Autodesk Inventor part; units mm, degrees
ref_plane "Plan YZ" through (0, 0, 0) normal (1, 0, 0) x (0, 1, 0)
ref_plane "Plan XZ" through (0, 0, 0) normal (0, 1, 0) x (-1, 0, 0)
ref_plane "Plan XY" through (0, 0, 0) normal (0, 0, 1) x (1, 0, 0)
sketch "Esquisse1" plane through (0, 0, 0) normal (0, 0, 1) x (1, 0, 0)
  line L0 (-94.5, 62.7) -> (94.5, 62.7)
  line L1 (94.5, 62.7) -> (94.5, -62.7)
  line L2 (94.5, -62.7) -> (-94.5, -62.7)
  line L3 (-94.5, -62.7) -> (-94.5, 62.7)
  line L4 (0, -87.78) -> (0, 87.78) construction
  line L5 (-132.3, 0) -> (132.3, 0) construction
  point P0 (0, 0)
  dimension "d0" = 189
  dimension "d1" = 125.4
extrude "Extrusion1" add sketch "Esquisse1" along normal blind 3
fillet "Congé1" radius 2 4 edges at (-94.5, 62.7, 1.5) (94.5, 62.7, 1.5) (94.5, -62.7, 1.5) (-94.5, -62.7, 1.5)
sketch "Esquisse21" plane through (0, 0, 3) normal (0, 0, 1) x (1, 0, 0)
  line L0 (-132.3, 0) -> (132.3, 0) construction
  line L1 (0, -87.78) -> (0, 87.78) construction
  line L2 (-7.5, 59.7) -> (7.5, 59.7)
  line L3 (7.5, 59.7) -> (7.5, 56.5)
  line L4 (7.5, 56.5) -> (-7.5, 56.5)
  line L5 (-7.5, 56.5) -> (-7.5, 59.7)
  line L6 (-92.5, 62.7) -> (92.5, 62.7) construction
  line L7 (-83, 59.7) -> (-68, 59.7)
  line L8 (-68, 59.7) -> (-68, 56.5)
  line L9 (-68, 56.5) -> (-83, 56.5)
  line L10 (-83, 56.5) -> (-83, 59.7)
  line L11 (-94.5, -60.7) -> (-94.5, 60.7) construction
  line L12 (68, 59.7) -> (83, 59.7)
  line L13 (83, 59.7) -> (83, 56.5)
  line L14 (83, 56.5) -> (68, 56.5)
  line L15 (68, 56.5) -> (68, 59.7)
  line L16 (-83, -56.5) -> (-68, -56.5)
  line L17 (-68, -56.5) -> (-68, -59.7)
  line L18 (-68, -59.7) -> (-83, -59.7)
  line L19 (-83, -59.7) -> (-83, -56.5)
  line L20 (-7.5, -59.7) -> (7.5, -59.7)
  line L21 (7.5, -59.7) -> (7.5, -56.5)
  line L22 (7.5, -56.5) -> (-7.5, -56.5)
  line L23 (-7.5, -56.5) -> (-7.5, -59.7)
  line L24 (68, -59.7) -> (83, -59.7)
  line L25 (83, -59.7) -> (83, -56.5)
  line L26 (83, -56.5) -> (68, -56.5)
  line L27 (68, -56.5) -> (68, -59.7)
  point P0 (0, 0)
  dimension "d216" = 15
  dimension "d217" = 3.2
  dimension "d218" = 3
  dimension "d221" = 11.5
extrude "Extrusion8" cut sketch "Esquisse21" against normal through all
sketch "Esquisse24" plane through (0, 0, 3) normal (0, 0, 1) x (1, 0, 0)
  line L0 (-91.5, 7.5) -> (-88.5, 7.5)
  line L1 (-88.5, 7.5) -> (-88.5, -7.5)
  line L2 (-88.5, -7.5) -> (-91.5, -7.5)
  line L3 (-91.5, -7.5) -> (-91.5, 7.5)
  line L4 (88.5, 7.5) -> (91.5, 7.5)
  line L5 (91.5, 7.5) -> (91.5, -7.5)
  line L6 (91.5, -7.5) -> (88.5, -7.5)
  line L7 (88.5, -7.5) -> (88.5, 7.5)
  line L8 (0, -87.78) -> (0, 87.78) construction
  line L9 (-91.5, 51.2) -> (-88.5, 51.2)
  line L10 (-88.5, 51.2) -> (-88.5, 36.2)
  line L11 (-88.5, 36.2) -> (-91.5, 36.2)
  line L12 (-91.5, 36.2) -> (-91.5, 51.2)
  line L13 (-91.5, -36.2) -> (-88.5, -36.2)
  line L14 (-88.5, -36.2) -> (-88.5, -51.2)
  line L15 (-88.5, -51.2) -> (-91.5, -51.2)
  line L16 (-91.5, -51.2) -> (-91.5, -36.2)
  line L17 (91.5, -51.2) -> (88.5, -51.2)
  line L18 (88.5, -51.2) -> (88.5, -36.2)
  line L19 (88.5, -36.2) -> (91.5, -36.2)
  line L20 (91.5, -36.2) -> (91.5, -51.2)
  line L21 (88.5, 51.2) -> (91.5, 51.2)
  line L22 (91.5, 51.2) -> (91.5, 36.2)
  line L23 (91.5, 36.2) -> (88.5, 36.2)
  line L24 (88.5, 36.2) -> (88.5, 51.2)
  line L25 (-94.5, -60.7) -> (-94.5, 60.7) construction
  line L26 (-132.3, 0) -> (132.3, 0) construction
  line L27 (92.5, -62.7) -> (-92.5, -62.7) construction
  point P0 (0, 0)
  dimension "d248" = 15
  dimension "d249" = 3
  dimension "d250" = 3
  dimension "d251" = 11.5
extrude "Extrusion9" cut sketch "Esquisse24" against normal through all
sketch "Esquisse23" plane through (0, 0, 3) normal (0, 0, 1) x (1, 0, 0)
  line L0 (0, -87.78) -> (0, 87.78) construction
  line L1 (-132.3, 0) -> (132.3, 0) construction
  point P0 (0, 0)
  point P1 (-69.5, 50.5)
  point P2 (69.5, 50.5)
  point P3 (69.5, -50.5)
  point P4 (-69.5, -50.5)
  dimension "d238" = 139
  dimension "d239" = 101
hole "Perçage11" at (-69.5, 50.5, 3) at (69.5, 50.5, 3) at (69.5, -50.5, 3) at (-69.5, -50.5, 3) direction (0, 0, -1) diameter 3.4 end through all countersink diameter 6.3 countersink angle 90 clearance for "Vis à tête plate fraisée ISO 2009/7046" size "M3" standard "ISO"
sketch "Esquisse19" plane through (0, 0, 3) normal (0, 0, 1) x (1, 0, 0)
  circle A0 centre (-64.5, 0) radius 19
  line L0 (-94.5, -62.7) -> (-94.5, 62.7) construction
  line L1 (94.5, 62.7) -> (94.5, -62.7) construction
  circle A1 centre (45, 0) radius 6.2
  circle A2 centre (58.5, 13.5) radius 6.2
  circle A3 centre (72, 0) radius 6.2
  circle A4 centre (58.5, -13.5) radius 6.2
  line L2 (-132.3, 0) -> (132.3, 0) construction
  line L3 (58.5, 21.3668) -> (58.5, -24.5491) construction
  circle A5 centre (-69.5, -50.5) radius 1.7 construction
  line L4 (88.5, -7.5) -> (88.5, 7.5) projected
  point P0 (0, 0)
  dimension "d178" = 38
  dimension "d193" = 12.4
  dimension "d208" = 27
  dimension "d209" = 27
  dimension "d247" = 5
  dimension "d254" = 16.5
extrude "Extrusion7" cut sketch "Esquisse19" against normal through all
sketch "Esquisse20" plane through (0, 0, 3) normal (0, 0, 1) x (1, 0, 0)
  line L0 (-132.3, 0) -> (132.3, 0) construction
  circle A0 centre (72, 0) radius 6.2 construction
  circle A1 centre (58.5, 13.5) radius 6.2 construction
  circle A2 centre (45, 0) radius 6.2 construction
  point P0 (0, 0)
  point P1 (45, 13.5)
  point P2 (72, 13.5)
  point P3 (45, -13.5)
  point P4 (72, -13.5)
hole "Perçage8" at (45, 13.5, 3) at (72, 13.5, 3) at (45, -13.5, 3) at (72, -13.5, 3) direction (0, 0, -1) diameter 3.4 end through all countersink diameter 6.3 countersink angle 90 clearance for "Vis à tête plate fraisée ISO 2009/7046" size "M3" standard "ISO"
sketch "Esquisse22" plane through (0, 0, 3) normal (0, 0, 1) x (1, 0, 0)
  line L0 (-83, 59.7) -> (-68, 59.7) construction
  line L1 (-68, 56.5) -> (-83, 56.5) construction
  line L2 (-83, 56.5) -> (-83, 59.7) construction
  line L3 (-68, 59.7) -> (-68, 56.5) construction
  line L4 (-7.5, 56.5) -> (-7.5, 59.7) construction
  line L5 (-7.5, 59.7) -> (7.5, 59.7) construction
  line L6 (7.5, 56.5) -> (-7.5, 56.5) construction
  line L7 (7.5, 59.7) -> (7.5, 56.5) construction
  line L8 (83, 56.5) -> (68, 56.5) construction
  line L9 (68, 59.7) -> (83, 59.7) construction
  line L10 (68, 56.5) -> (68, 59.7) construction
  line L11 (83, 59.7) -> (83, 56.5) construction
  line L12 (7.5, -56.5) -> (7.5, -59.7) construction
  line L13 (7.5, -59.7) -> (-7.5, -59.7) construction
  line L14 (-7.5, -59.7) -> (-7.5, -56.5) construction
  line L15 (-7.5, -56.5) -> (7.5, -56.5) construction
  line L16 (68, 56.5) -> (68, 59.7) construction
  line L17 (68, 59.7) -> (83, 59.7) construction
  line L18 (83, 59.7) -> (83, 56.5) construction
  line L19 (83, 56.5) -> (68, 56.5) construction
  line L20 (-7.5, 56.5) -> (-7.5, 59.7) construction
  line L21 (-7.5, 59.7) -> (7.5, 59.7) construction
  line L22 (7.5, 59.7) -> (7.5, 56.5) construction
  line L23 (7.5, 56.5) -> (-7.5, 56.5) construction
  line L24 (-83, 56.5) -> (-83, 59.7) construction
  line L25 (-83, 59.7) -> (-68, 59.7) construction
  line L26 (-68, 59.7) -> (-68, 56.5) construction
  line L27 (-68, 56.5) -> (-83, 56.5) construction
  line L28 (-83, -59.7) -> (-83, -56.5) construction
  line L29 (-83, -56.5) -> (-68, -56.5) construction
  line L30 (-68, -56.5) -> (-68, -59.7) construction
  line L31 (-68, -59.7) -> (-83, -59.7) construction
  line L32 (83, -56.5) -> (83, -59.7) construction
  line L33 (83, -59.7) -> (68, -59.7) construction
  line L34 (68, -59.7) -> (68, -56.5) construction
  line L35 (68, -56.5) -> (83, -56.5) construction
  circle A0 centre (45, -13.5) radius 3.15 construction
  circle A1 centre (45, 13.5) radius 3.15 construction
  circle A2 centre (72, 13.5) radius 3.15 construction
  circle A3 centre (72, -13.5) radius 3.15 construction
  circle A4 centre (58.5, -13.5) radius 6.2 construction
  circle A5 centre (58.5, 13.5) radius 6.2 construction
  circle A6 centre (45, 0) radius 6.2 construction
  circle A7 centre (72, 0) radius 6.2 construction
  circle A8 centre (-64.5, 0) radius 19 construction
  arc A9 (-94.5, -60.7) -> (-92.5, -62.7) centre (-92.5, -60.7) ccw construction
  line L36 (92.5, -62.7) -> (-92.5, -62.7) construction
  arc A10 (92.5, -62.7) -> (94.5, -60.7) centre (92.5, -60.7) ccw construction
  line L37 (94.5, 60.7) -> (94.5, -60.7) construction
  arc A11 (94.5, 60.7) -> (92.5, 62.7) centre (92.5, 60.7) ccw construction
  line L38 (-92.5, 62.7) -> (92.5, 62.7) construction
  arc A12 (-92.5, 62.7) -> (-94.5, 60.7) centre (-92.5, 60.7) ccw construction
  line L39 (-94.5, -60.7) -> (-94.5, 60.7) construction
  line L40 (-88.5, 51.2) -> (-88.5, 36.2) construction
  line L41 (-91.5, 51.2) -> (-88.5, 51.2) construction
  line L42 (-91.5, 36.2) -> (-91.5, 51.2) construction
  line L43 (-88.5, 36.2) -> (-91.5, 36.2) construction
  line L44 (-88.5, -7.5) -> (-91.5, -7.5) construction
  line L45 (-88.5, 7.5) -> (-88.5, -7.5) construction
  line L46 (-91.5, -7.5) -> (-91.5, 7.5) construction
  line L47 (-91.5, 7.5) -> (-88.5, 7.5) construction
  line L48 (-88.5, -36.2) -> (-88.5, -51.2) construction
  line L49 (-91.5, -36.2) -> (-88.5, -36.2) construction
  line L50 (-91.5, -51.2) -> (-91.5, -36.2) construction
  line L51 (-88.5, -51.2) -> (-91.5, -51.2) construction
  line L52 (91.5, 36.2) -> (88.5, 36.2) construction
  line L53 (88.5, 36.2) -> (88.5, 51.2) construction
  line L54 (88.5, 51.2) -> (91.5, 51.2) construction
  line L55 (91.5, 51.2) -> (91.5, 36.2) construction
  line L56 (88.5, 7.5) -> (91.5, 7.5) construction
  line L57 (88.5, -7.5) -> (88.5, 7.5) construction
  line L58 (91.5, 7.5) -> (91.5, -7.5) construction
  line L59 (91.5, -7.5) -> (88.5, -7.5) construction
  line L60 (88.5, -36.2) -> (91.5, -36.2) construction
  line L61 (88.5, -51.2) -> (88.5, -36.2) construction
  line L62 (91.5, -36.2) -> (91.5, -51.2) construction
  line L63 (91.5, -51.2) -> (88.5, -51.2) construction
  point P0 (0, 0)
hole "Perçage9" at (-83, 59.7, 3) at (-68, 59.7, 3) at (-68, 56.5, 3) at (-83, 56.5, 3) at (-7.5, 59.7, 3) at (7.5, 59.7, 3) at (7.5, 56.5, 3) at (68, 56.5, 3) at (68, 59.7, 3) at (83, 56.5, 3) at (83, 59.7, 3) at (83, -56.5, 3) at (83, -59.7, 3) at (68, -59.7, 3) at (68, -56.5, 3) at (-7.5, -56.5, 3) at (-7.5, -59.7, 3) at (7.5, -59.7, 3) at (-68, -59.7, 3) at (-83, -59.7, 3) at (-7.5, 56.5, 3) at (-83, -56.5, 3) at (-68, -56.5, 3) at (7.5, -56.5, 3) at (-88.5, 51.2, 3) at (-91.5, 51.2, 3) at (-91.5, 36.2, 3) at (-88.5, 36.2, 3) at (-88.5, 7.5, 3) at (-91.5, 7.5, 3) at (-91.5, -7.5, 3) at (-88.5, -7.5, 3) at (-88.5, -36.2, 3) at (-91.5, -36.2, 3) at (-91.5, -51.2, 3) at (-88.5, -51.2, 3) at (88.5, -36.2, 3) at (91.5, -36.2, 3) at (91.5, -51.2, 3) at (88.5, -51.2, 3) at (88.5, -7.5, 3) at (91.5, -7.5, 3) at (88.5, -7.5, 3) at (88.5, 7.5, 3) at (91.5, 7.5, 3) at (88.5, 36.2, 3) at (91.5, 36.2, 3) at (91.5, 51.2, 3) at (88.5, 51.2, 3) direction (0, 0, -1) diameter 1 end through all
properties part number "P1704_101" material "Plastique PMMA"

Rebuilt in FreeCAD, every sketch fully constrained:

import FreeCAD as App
import Part
import Sketcher


def edges_at(feature, points):
    """Names of the edges that pass closest to the given points."""
    edges = feature.Shape.Edges
    near = lambda p: min(range(len(edges)), key=lambda i: edges[i].distToShape(Part.Vertex(*p))[0])
    return sorted({f"Edge{near(p) + 1}" for p in points})


def add_polygon(sketch, points):
    """Adds a closed chain of lines whose ends are joined by coincident constraints."""
    first, n = sketch.GeometryCount, len(points)
    for a, b in zip(points, points[1:] + points[:1]):
        sketch.addGeometry(Part.LineSegment(App.Vector(*a, 0), App.Vector(*b, 0)), False)
    for i in range(n):
        sketch.addConstraint(Sketcher.Constraint("Coincident", first + i, 2, first + (i + 1) % n, 1))

doc = App.newDocument("Part")
body = doc.addObject("PartDesign::Body", "Body")

sketch1 = body.newObject("Sketcher::SketchObject", "Sketch")
sketch1.AttachmentSupport = (doc.getObject("XY_Plane"), [""])
sketch1.MapMode = "FlatFace"
add_polygon(sketch1, [(94, 63), (-94, 63), (-94, -63), (94, -63)])
sketch1.addConstraint([
    Sketcher.Constraint("Horizontal", 0),
    Sketcher.Constraint("Vertical", 1),
    Sketcher.Constraint("Horizontal", 2),
    Sketcher.Constraint("Vertical", 3),
    Sketcher.Constraint("Symmetric", 0, 2, 2, 2, -1, 1),
    Sketcher.Constraint("DistanceX", 0, 2, 0, 1, 189.0),
    Sketcher.Constraint("DistanceY", 1, 2, 1, 1, 125.4),
])
pad1 = body.newObject("PartDesign::Pad", "Pad")
pad1.Profile = sketch1
pad1.Length = 3
doc.recompute()

fillet = body.newObject("PartDesign::Fillet", "Fillet")
fillet.Base = (pad1, edges_at(pad1, [
    (-94.5, 62.7, 1.5),
    (94.5, 62.7, 1.5),
    (94.5, -62.7, 1.5),
    (-94.5, -62.7, 1.5),
]))
fillet.Radius = 2

sketch2 = body.newObject("Sketcher::SketchObject", "Sketch001")
sketch2.AttachmentSupport = (doc.getObject("XY_Plane"), [""])
sketch2.MapMode = "FlatFace"
sketch2.AttachmentOffset = App.Placement(App.Vector(0, 0, 3), App.Rotation())
add_polygon(sketch2, [(7.5, 59.7), (-7.5, 59.7), (-7.5, 56.5), (7.5, 56.5)])
add_polygon(sketch2, [(-68, 59.7), (-83, 59.7), (-83, 56.5), (-68, 56.5)])
add_polygon(sketch2, [(83, 59.7), (68, 59.7), (68, 56.5), (83, 56.5)])
add_polygon(sketch2, [(-68, -56.5), (-83, -56.5), (-83, -59.7), (-68, -59.7)])
add_polygon(sketch2, [(-7.5, -56.5), (-7.5, -59.7), (7.5, -59.7), (7.5, -56.5)])
add_polygon(sketch2, [(68, -56.5), (68, -59.7), (83, -59.7), (83, -56.5)])
sketch2.addConstraint([
    Sketcher.Constraint("Horizontal", 0),
    Sketcher.Constraint("Vertical", 1),
    Sketcher.Constraint("Horizontal", 2),
    Sketcher.Constraint("Vertical", 3),
    Sketcher.Constraint("Horizontal", 4),
    Sketcher.Constraint("Vertical", 5),
    Sketcher.Constraint("Horizontal", 6),
    Sketcher.Constraint("Vertical", 7),
    Sketcher.Constraint("Horizontal", 8),
    Sketcher.Constraint("Vertical", 9),
    Sketcher.Constraint("Horizontal", 10),
    Sketcher.Constraint("Vertical", 11),
    Sketcher.Constraint("Horizontal", 12),
    Sketcher.Constraint("Vertical", 13),
    Sketcher.Constraint("Horizontal", 14),
    Sketcher.Constraint("Vertical", 15),
    Sketcher.Constraint("Vertical", 16),
    Sketcher.Constraint("Horizontal", 17),
    Sketcher.Constraint("Vertical", 18),
    Sketcher.Constraint("Horizontal", 19),
    Sketcher.Constraint("Vertical", 20),
    Sketcher.Constraint("Horizontal", 21),
    Sketcher.Constraint("Vertical", 22),
    Sketcher.Constraint("Horizontal", 23),
    Sketcher.Constraint("Symmetric", 10, 2, 12, 2, -1, 1),
    Sketcher.Constraint("Symmetric", 8, 2, 14, 2, -1, 1),
    Sketcher.Constraint("Symmetric", 3, 2, 16, 2, -1, 1),
    Sketcher.Constraint("Symmetric", 1, 2, 18, 2, -1, 1),
    Sketcher.Constraint("Symmetric", 7, 2, 20, 2, -1, 1),
    Sketcher.Constraint("Symmetric", 5, 2, 22, 2, -1, 1),
    Sketcher.Constraint("Symmetric", 7, 2, 8, 2, -2),
    Sketcher.Constraint("Symmetric", 5, 2, 10, 2, -2),
    Sketcher.Constraint("Horizontal", 3, 2, 4, 2),
    Sketcher.Constraint("Horizontal", 2, 2, 5, 2),
    Sketcher.Constraint("Vertical", 1, 2, 16, 2),
    Sketcher.Constraint("Equal", 2, 4),
    Sketcher.Constraint("DistanceX", 0, 2, 0, 1, 15.0),
    Sketcher.Constraint("DistanceY", 1, 2, 1, 1, 3.2),
    Sketcher.Constraint("DistanceX", 4, 2, -1, 1, 83.0),
    Sketcher.Constraint("DistanceY", 12, 2, 5, 2, 113.0),
])
pocket1 = body.newObject("PartDesign::Pocket", "Pocket")
pocket1.Profile = sketch2
pocket1.Type = "ThroughAll"

sketch3 = body.newObject("Sketcher::SketchObject", "Sketch002")
sketch3.AttachmentSupport = (doc.getObject("XY_Plane"), [""])
sketch3.MapMode = "FlatFace"
sketch3.AttachmentOffset = App.Placement(App.Vector(0, 0, 3), App.Rotation())
add_polygon(sketch3, [(-88.5, 7.5), (-91.5, 7.5), (-91.5, -7.5), (-88.5, -7.5)])
add_polygon(sketch3, [(91.5, 7.5), (88.5, 7.5), (88.5, -7.5), (91.5, -7.5)])
add_polygon(sketch3, [(-88.5, 51.2), (-91.5, 51.2), (-91.5, 36.2), (-88.5, 36.2)])
add_polygon(sketch3, [(-88.5, -36.2), (-91.5, -36.2), (-91.5, -51.2), (-88.5, -51.2)])
add_polygon(sketch3, [(88.5, -51.2), (91.5, -51.2), (91.5, -36.2), (88.5, -36.2)])
add_polygon(sketch3, [(91.5, 51.2), (88.5, 51.2), (88.5, 36.2), (91.5, 36.2)])
sketch3.addConstraint([
    Sketcher.Constraint("Horizontal", 0),
    Sketcher.Constraint("Vertical", 1),
    Sketcher.Constraint("Horizontal", 2),
    Sketcher.Constraint("Vertical", 3),
    Sketcher.Constraint("Horizontal", 4),
    Sketcher.Constraint("Vertical", 5),
    Sketcher.Constraint("Horizontal", 6),
    Sketcher.Constraint("Vertical", 7),
    Sketcher.Constraint("Horizontal", 8),
    Sketcher.Constraint("Vertical", 9),
    Sketcher.Constraint("Horizontal", 10),
    Sketcher.Constraint("Vertical", 11),
    Sketcher.Constraint("Horizontal", 12),
    Sketcher.Constraint("Vertical", 13),
    Sketcher.Constraint("Horizontal", 14),
    Sketcher.Constraint("Vertical", 15),
    Sketcher.Constraint("Horizontal", 16),
    Sketcher.Constraint("Vertical", 17),
    Sketcher.Constraint("Horizontal", 18),
    Sketcher.Constraint("Vertical", 19),
    Sketcher.Constraint("Horizontal", 20),
    Sketcher.Constraint("Vertical", 21),
    Sketcher.Constraint("Horizontal", 22),
    Sketcher.Constraint("Vertical", 23),
    Sketcher.Constraint("Symmetric", 2, 2, 4, 2, -1, 1),
    Sketcher.Constraint("Symmetric", 0, 2, 6, 2, -1, 1),
    Sketcher.Constraint("Symmetric", 8, 2, 16, 2, -1, 1),
    Sketcher.Constraint("Symmetric", 10, 2, 18, 2, -1, 1),
    Sketcher.Constraint("Symmetric", 14, 2, 20, 2, -1, 1),
    Sketcher.Constraint("Symmetric", 12, 2, 22, 2, -1, 1),
    Sketcher.Constraint("Symmetric", 13, 2, 16, 2, -2),
    Sketcher.Constraint("Symmetric", 15, 2, 18, 2, -2),
    Sketcher.Constraint("Horizontal", 3, 2, 4, 2),
    Sketcher.Constraint("Vertical", 1, 2, 8, 2),
    Sketcher.Constraint("Vertical", 3, 2, 10, 2),
    Sketcher.Constraint("Equal", 7, 9),
    Sketcher.Constraint("DistanceX", 0, 2, 0, 1, 3.0),
    Sketcher.Constraint("DistanceY", 1, 2, 1, 1, 15.0),
    Sketcher.Constraint("DistanceX", 3, 2, 4, 2, 177.0),
    Sketcher.Constraint("DistanceY", -1, 1, 8, 2, 51.2),
])
pocket2 = body.newObject("PartDesign::Pocket", "Pocket001")
pocket2.Profile = sketch3
pocket2.Type = "ThroughAll"

sketch4 = body.newObject("Sketcher::SketchObject", "Sketch003")
sketch4.AttachmentSupport = (doc.getObject("XY_Plane"), [""])
sketch4.MapMode = "FlatFace"
sketch4.AttachmentOffset = App.Placement(App.Vector(0, 0, 3), App.Rotation())
sketch4.addGeometry([
    Part.Circle(App.Vector(-69.5, 50.5, 0), App.Vector(0, 0, 1), 1.7),
    Part.Circle(App.Vector(69.5, 50.5, 0), App.Vector(0, 0, 1), 1.7),
    Part.Circle(App.Vector(69.5, -50.5, 0), App.Vector(0, 0, 1), 1.7),
    Part.Circle(App.Vector(-69.5, -50.5, 0), App.Vector(0, 0, 1), 1.7),
], False)
sketch4.addConstraint([
    Sketcher.Constraint("Equal", 0, 1),
    Sketcher.Constraint("Equal", 1, 2),
    Sketcher.Constraint("Equal", 2, 3),
    Sketcher.Constraint("Symmetric", 0, 3, 2, 3, -1, 1),
    Sketcher.Constraint("Symmetric", 1, 3, 3, 3, -1, 1),
    Sketcher.Constraint("Symmetric", 0, 3, 1, 3, -2),
    Sketcher.Constraint("Diameter", 0, 3.4),
    Sketcher.Constraint("DistanceX", 0, 3, 1, 3, 139.0),
    Sketcher.Constraint("DistanceY", 2, 3, 1, 3, 101.0),
])
doc.recompute()
hole = body.newObject("PartDesign::Hole", "Hole")
hole.Profile = sketch4
hole.ThreadType = "None"
hole.Diameter = 3.4
hole.DepthType = "ThroughAll"
hole.HoleCutType = "Countersink"
hole.HoleCutDiameter = 6.3
hole.HoleCutCountersinkAngle = 90

sketch5 = body.newObject("Sketcher::SketchObject", "Sketch004")
sketch5.AttachmentSupport = (doc.getObject("XY_Plane"), [""])
sketch5.MapMode = "FlatFace"
sketch5.AttachmentOffset = App.Placement(App.Vector(0, 0, 3), App.Rotation())
sketch5.addGeometry([
    Part.Circle(App.Vector(-64, 0, 0), App.Vector(0, 0, 1), 19),
    Part.Circle(App.Vector(45, 0, 0), App.Vector(0, 0, 1), 6),
    Part.Circle(App.Vector(58, 14, 0), App.Vector(0, 0, 1), 6),
    Part.Circle(App.Vector(72, 0, 0), App.Vector(0, 0, 1), 6),
    Part.Circle(App.Vector(58, -14, 0), App.Vector(0, 0, 1), 6),
], False)
sketch5.addConstraint([
    Sketcher.Constraint("Equal", 1, 2),
    Sketcher.Constraint("Equal", 2, 3),
    Sketcher.Constraint("Equal", 3, 4),
    Sketcher.Constraint("Symmetric", 2, 3, 4, 3, -1),
    Sketcher.Constraint("PointOnObject", 0, 3, -1),
    Sketcher.Constraint("PointOnObject", 1, 3, -1),
    Sketcher.Constraint("PointOnObject", 3, 3, -1),
    Sketcher.Constraint("Diameter", 0, 38.0),
    Sketcher.Constraint("Diameter", 1, 12.4),
    Sketcher.Constraint("DistanceX", 1, 3, 3, 3, 27.0),
    Sketcher.Constraint("DistanceY", 4, 3, 2, 3, 27.0),
    Sketcher.Constraint("DistanceX", -1, 1, 1, 3, 45.0),
    Sketcher.Constraint("DistanceX", 0, 3, 2, 3, 123.0),
    Sketcher.Constraint("DistanceX", 0, 3, -1, 1, 64.5),
])
pocket3 = body.newObject("PartDesign::Pocket", "Pocket002")
pocket3.Profile = sketch5
pocket3.Type = "ThroughAll"

sketch6 = body.newObject("Sketcher::SketchObject", "Sketch005")
sketch6.AttachmentSupport = (doc.getObject("XY_Plane"), [""])
sketch6.MapMode = "FlatFace"
sketch6.AttachmentOffset = App.Placement(App.Vector(0, 0, 3), App.Rotation())
sketch6.addGeometry([
    Part.Circle(App.Vector(45, 13.5, 0), App.Vector(0, 0, 1), 1.7),
    Part.Circle(App.Vector(72, 13.5, 0), App.Vector(0, 0, 1), 1.7),
    Part.Circle(App.Vector(45, -13.5, 0), App.Vector(0, 0, 1), 1.7),
    Part.Circle(App.Vector(72, -13.5, 0), App.Vector(0, 0, 1), 1.7),
], False)
sketch6.addConstraint([
    Sketcher.Constraint("Equal", 0, 1),
    Sketcher.Constraint("Equal", 1, 2),
    Sketcher.Constraint("Equal", 2, 3),
    Sketcher.Constraint("Symmetric", 0, 3, 2, 3, -1),
    Sketcher.Constraint("Symmetric", 1, 3, 3, 3, -1),
    Sketcher.Constraint("Horizontal", 0, 3, 1, 3),
    Sketcher.Constraint("Diameter", 0, 3.4),
    Sketcher.Constraint("DistanceX", -1, 1, 0, 3, 45.0),
    Sketcher.Constraint("DistanceX", -1, 1, 1, 3, 72.0),
    Sketcher.Constraint("DistanceY", 2, 3, 0, 3, 27.0),
])
doc.recompute()
hole2 = body.newObject("PartDesign::Hole", "Hole001")
hole2.Profile = sketch6
hole2.ThreadType = "None"
hole2.Diameter = 3.4
hole2.DepthType = "ThroughAll"
hole2.HoleCutType = "Countersink"
hole2.HoleCutDiameter = 6.3
hole2.HoleCutCountersinkAngle = 90

sketch7 = body.newObject("Sketcher::SketchObject", "Sketch006")
sketch7.AttachmentSupport = (doc.getObject("XY_Plane"), [""])
sketch7.MapMode = "FlatFace"
sketch7.AttachmentOffset = App.Placement(App.Vector(0, 0, 3), App.Rotation())
sketch7.addGeometry([
    Part.Circle(App.Vector(-83, 59.7, 0), App.Vector(0, 0, 1), 0.5),
    Part.Circle(App.Vector(-68, 59.7, 0), App.Vector(0, 0, 1), 0.5),
    Part.Circle(App.Vector(-68, 56.5, 0), App.Vector(0, 0, 1), 0.5),
    Part.Circle(App.Vector(-83, 56.5, 0), App.Vector(0, 0, 1), 0.5),
    Part.Circle(App.Vector(-7.5, 59.7, 0), App.Vector(0, 0, 1), 0.5),
    Part.Circle(App.Vector(7.5, 59.7, 0), App.Vector(0, 0, 1), 0.5),
    Part.Circle(App.Vector(7.5, 56.5, 0), App.Vector(0, 0, 1), 0.5),
    Part.Circle(App.Vector(68, 56.5, 0), App.Vector(0, 0, 1), 0.5),
    Part.Circle(App.Vector(68, 59.7, 0), App.Vector(0, 0, 1), 0.5),
    Part.Circle(App.Vector(83, 56.5, 0), App.Vector(0, 0, 1), 0.5),
    Part.Circle(App.Vector(83, 59.7, 0), App.Vector(0, 0, 1), 0.5),
    Part.Circle(App.Vector(83, -56.5, 0), App.Vector(0, 0, 1), 0.5),
    Part.Circle(App.Vector(83, -59.7, 0), App.Vector(0, 0, 1), 0.5),
    Part.Circle(App.Vector(68, -59.7, 0), App.Vector(0, 0, 1), 0.5),
    Part.Circle(App.Vector(68, -56.5, 0), App.Vector(0, 0, 1), 0.5),
    Part.Circle(App.Vector(-7.5, -56.5, 0), App.Vector(0, 0, 1), 0.5),
    Part.Circle(App.Vector(-7.5, -59.7, 0), App.Vector(0, 0, 1), 0.5),
    Part.Circle(App.Vector(7.5, -59.7, 0), App.Vector(0, 0, 1), 0.5),
    Part.Circle(App.Vector(-68, -59.7, 0), App.Vector(0, 0, 1), 0.5),
    Part.Circle(App.Vector(-83, -59.7, 0), App.Vector(0, 0, 1), 0.5),
    Part.Circle(App.Vector(-7.5, 56.5, 0), App.Vector(0, 0, 1), 0.5),
    Part.Circle(App.Vector(-83, -56.5, 0), App.Vector(0, 0, 1), 0.5),
    Part.Circle(App.Vector(-68, -56.5, 0), App.Vector(0, 0, 1), 0.5),
    Part.Circle(App.Vector(7.5, -56.5, 0), App.Vector(0, 0, 1), 0.5),
    Part.Circle(App.Vector(-88.5, 51.2, 0), App.Vector(0, 0, 1), 0.5),
    Part.Circle(App.Vector(-91.5, 51.2, 0), App.Vector(0, 0, 1), 0.5),
    Part.Circle(App.Vector(-91.5, 36.2, 0), App.Vector(0, 0, 1), 0.5),
    Part.Circle(App.Vector(-88.5, 36.2, 0), App.Vector(0, 0, 1), 0.5),
    Part.Circle(App.Vector(-88.5, 7.5, 0), App.Vector(0, 0, 1), 0.5),
    Part.Circle(App.Vector(-91.5, 7.5, 0), App.Vector(0, 0, 1), 0.5),
    Part.Circle(App.Vector(-91.5, -7.5, 0), App.Vector(0, 0, 1), 0.5),
    Part.Circle(App.Vector(-88.5, -7.5, 0), App.Vector(0, 0, 1), 0.5),
    Part.Circle(App.Vector(-88.5, -36.2, 0), App.Vector(0, 0, 1), 0.5),
    Part.Circle(App.Vector(-91.5, -36.2, 0), App.Vector(0, 0, 1), 0.5),
    Part.Circle(App.Vector(-91.5, -51.2, 0), App.Vector(0, 0, 1), 0.5),
    Part.Circle(App.Vector(-88.5, -51.2, 0), App.Vector(0, 0, 1), 0.5),
    Part.Circle(App.Vector(88.5, -36.2, 0), App.Vector(0, 0, 1), 0.5),
    Part.Circle(App.Vector(91.5, -36.2, 0), App.Vector(0, 0, 1), 0.5),
    Part.Circle(App.Vector(91.5, -51.2, 0), App.Vector(0, 0, 1), 0.5),
    Part.Circle(App.Vector(88.5, -51.2, 0), App.Vector(0, 0, 1), 0.5),
    Part.Circle(App.Vector(88.5, -7.5, 0), App.Vector(0, 0, 1), 0.5),
    Part.Circle(App.Vector(91.5, -7.5, 0), App.Vector(0, 0, 1), 0.5),
    Part.Circle(App.Vector(88.5, -7.5, 0), App.Vector(0, 0, 1), 0.5),
    Part.Circle(App.Vector(88.5, 7.5, 0), App.Vector(0, 0, 1), 0.5),
    Part.Circle(App.Vector(91.5, 7.5, 0), App.Vector(0, 0, 1), 0.5),
    Part.Circle(App.Vector(88.5, 36.2, 0), App.Vector(0, 0, 1), 0.5),
    Part.Circle(App.Vector(91.5, 36.2, 0), App.Vector(0, 0, 1), 0.5),
    Part.Circle(App.Vector(91.5, 51.2, 0), App.Vector(0, 0, 1), 0.5),
    Part.Circle(App.Vector(88.5, 51.2, 0), App.Vector(0, 0, 1), 0.5),
], False)
sketch7.addConstraint([
    Sketcher.Constraint("Coincident", 42, 3, 40, 3),
    Sketcher.Constraint("Equal", 0, 1),
    Sketcher.Constraint("Equal", 1, 2),
    Sketcher.Constraint("Equal", 2, 3),
    Sketcher.Constraint("Equal", 3, 4),
    Sketcher.Constraint("Equal", 4, 5),
    Sketcher.Constraint("Equal", 5, 6),
    Sketcher.Constraint("Equal", 6, 7),
    Sketcher.Constraint("Equal", 7, 8),
    Sketcher.Constraint("Equal", 8, 9),
    Sketcher.Constraint("Equal", 9, 10),
    Sketcher.Constraint("Equal", 10, 11),
    Sketcher.Constraint("Equal", 11, 12),
    Sketcher.Constraint("Equal", 12, 13),
    Sketcher.Constraint("Equal", 13, 14),
    Sketcher.Constraint("Equal", 14, 15),
    Sketcher.Constraint("Equal", 15, 16),
    Sketcher.Constraint("Equal", 16, 17),
    Sketcher.Constraint("Equal", 17, 18),
    Sketcher.Constraint("Equal", 18, 19),
    Sketcher.Constraint("Equal", 19, 20),
    Sketcher.Constraint("Equal", 20, 21),
    Sketcher.Constraint("Equal", 21, 22),
    Sketcher.Constraint("Equal", 22, 23),
    Sketcher.Constraint("Equal", 23, 24),
    Sketcher.Constraint("Equal", 24, 25),
    Sketcher.Constraint("Equal", 25, 26),
    Sketcher.Constraint("Equal", 26, 27),
    Sketcher.Constraint("Equal", 27, 28),
    Sketcher.Constraint("Equal", 28, 29),
    Sketcher.Constraint("Equal", 29, 30),
    Sketcher.Constraint("Equal", 30, 31),
    Sketcher.Constraint("Equal", 31, 32),
    Sketcher.Constraint("Equal", 32, 33),
    Sketcher.Constraint("Equal", 33, 34),
    Sketcher.Constraint("Equal", 34, 35),
    Sketcher.Constraint("Equal", 35, 36),
    Sketcher.Constraint("Equal", 36, 37),
    Sketcher.Constraint("Equal", 37, 38),
    Sketcher.Constraint("Equal", 38, 39),
    Sketcher.Constraint("Equal", 39, 40),
    Sketcher.Constraint("Equal", 40, 41),
    Sketcher.Constraint("Equal", 41, 42),
    Sketcher.Constraint("Equal", 42, 43),
    Sketcher.Constraint("Equal", 43, 44),
    Sketcher.Constraint("Equal", 44, 45),
    Sketcher.Constraint("Equal", 45, 46),
    Sketcher.Constraint("Equal", 46, 47),
    Sketcher.Constraint("Equal", 47, 48),
    Sketcher.Constraint("Symmetric", 3, 3, 11, 3, -1, 1),
    Sketcher.Constraint("Symmetric", 0, 3, 12, 3, -1, 1),
    Sketcher.Constraint("Symmetric", 1, 3, 13, 3, -1, 1),
    Sketcher.Constraint("Symmetric", 2, 3, 14, 3, -1, 1),
    Sketcher.Constraint("Symmetric", 6, 3, 15, 3, -1, 1),
    Sketcher.Constraint("Symmetric", 5, 3, 16, 3, -1, 1),
    Sketcher.Constraint("Symmetric", 4, 3, 17, 3, -1, 1),
    Sketcher.Constraint("Symmetric", 8, 3, 18, 3, -1, 1),
    Sketcher.Constraint("Symmetric", 10, 3, 19, 3, -1, 1),
    Sketcher.Constraint("Symmetric", 9, 3, 21, 3, -1, 1),
    Sketcher.Constraint("Symmetric", 7, 3, 22, 3, -1, 1),
    Sketcher.Constraint("Symmetric", 20, 3, 23, 3, -1, 1),
    Sketcher.Constraint("Symmetric", 27, 3, 36, 3, -1, 1),
    Sketcher.Constraint("Symmetric", 26, 3, 37, 3, -1, 1),
    Sketcher.Constraint("Symmetric", 25, 3, 38, 3, -1, 1),
    Sketcher.Constraint("Symmetric", 24, 3, 39, 3, -1, 1),
    Sketcher.Constraint("Symmetric", 28, 3, 40, 3, -1, 1),
    Sketcher.Constraint("Symmetric", 29, 3, 41, 3, -1, 1),
    Sketcher.Constraint("Symmetric", 31, 3, 43, 3, -1, 1),
    Sketcher.Constraint("Symmetric", 30, 3, 44, 3, -1, 1),
    Sketcher.Constraint("Symmetric", 32, 3, 45, 3, -1, 1),
    Sketcher.Constraint("Symmetric", 33, 3, 46, 3, -1, 1),
    Sketcher.Constraint("Symmetric", 34, 3, 47, 3, -1, 1),
    Sketcher.Constraint("Symmetric", 35, 3, 48, 3, -1, 1),
    Sketcher.Constraint("Symmetric", 4, 3, 5, 3, -2),
    Sketcher.Constraint("Symmetric", 2, 3, 7, 3, -2),
    Sketcher.Constraint("Symmetric", 1, 3, 8, 3, -2),
    Sketcher.Constraint("Symmetric", 3, 3, 9, 3, -2),
    Sketcher.Constraint("Symmetric", 0, 3, 10, 3, -2),
    Sketcher.Constraint("Symmetric", 6, 3, 20, 3, -2),
    Sketcher.Constraint("Symmetric", 32, 3, 36, 3, -2),
    Sketcher.Constraint("Symmetric", 33, 3, 37, 3, -2),
    Sketcher.Constraint("Symmetric", 34, 3, 38, 3, -2),
    Sketcher.Constraint("Symmetric", 35, 3, 39, 3, -2),
    Sketcher.Constraint("Symmetric", 31, 3, 40, 3, -2),
    Sketcher.Constraint("Symmetric", 30, 3, 41, 3, -2),
    Sketcher.Constraint("Horizontal", 0, 3, 1, 3),
    Sketcher.Constraint("Horizontal", 2, 3, 3, 3),
    Sketcher.Constraint("Horizontal", 1, 3, 4, 3),
    Sketcher.Constraint("Horizontal", 3, 3, 6, 3),
    Sketcher.Constraint("Horizontal", 24, 3, 25, 3),
    Sketcher.Constraint("Horizontal", 26, 3, 27, 3),
    Sketcher.Constraint("Horizontal", 28, 3, 29, 3),
    Sketcher.Constraint("Vertical", 1, 3, 2, 3),
    Sketcher.Constraint("Vertical", 0, 3, 3, 3),
    Sketcher.Constraint("Vertical", 5, 3, 6, 3),
    Sketcher.Constraint("Vertical", 25, 3, 26, 3),
    Sketcher.Constraint("Vertical", 24, 3, 27, 3),
    Sketcher.Constraint("Vertical", 27, 3, 28, 3),
    Sketcher.Constraint("Vertical", 26, 3, 29, 3),
    Sketcher.Constraint("Diameter", 0, 1.0),
    Sketcher.Constraint("DistanceX", 0, 3, -1, 1, 83.0),
    Sketcher.Constraint("DistanceX", 1, 3, -1, 1, 68.0),
    Sketcher.Constraint("DistanceX", 4, 3, 5, 3, 15.0),
    Sketcher.Constraint("DistanceY", 11, 3, 9, 3, 113.0),
    Sketcher.Constraint("DistanceX", 24, 3, 20, 3, 81.0),
    Sketcher.Constraint("DistanceX", 25, 3, 24, 3, 3.0),
    Sketcher.Constraint("DistanceY", 26, 3, 25, 3, 15.0),
    Sketcher.Constraint("DistanceY", 28, 3, 3, 3, 49.0),
    Sketcher.Constraint("DistanceY", -1, 1, 0, 3, 59.7),
    Sketcher.Constraint("DistanceY", -1, 1, 24, 3, 51.2),
])
doc.recompute()
hole3 = body.newObject("PartDesign::Hole", "Hole002")
hole3.Profile = sketch7
hole3.ThreadType = "None"
hole3.Diameter = 1
hole3.DepthType = "ThroughAll"

doc.recompute()
